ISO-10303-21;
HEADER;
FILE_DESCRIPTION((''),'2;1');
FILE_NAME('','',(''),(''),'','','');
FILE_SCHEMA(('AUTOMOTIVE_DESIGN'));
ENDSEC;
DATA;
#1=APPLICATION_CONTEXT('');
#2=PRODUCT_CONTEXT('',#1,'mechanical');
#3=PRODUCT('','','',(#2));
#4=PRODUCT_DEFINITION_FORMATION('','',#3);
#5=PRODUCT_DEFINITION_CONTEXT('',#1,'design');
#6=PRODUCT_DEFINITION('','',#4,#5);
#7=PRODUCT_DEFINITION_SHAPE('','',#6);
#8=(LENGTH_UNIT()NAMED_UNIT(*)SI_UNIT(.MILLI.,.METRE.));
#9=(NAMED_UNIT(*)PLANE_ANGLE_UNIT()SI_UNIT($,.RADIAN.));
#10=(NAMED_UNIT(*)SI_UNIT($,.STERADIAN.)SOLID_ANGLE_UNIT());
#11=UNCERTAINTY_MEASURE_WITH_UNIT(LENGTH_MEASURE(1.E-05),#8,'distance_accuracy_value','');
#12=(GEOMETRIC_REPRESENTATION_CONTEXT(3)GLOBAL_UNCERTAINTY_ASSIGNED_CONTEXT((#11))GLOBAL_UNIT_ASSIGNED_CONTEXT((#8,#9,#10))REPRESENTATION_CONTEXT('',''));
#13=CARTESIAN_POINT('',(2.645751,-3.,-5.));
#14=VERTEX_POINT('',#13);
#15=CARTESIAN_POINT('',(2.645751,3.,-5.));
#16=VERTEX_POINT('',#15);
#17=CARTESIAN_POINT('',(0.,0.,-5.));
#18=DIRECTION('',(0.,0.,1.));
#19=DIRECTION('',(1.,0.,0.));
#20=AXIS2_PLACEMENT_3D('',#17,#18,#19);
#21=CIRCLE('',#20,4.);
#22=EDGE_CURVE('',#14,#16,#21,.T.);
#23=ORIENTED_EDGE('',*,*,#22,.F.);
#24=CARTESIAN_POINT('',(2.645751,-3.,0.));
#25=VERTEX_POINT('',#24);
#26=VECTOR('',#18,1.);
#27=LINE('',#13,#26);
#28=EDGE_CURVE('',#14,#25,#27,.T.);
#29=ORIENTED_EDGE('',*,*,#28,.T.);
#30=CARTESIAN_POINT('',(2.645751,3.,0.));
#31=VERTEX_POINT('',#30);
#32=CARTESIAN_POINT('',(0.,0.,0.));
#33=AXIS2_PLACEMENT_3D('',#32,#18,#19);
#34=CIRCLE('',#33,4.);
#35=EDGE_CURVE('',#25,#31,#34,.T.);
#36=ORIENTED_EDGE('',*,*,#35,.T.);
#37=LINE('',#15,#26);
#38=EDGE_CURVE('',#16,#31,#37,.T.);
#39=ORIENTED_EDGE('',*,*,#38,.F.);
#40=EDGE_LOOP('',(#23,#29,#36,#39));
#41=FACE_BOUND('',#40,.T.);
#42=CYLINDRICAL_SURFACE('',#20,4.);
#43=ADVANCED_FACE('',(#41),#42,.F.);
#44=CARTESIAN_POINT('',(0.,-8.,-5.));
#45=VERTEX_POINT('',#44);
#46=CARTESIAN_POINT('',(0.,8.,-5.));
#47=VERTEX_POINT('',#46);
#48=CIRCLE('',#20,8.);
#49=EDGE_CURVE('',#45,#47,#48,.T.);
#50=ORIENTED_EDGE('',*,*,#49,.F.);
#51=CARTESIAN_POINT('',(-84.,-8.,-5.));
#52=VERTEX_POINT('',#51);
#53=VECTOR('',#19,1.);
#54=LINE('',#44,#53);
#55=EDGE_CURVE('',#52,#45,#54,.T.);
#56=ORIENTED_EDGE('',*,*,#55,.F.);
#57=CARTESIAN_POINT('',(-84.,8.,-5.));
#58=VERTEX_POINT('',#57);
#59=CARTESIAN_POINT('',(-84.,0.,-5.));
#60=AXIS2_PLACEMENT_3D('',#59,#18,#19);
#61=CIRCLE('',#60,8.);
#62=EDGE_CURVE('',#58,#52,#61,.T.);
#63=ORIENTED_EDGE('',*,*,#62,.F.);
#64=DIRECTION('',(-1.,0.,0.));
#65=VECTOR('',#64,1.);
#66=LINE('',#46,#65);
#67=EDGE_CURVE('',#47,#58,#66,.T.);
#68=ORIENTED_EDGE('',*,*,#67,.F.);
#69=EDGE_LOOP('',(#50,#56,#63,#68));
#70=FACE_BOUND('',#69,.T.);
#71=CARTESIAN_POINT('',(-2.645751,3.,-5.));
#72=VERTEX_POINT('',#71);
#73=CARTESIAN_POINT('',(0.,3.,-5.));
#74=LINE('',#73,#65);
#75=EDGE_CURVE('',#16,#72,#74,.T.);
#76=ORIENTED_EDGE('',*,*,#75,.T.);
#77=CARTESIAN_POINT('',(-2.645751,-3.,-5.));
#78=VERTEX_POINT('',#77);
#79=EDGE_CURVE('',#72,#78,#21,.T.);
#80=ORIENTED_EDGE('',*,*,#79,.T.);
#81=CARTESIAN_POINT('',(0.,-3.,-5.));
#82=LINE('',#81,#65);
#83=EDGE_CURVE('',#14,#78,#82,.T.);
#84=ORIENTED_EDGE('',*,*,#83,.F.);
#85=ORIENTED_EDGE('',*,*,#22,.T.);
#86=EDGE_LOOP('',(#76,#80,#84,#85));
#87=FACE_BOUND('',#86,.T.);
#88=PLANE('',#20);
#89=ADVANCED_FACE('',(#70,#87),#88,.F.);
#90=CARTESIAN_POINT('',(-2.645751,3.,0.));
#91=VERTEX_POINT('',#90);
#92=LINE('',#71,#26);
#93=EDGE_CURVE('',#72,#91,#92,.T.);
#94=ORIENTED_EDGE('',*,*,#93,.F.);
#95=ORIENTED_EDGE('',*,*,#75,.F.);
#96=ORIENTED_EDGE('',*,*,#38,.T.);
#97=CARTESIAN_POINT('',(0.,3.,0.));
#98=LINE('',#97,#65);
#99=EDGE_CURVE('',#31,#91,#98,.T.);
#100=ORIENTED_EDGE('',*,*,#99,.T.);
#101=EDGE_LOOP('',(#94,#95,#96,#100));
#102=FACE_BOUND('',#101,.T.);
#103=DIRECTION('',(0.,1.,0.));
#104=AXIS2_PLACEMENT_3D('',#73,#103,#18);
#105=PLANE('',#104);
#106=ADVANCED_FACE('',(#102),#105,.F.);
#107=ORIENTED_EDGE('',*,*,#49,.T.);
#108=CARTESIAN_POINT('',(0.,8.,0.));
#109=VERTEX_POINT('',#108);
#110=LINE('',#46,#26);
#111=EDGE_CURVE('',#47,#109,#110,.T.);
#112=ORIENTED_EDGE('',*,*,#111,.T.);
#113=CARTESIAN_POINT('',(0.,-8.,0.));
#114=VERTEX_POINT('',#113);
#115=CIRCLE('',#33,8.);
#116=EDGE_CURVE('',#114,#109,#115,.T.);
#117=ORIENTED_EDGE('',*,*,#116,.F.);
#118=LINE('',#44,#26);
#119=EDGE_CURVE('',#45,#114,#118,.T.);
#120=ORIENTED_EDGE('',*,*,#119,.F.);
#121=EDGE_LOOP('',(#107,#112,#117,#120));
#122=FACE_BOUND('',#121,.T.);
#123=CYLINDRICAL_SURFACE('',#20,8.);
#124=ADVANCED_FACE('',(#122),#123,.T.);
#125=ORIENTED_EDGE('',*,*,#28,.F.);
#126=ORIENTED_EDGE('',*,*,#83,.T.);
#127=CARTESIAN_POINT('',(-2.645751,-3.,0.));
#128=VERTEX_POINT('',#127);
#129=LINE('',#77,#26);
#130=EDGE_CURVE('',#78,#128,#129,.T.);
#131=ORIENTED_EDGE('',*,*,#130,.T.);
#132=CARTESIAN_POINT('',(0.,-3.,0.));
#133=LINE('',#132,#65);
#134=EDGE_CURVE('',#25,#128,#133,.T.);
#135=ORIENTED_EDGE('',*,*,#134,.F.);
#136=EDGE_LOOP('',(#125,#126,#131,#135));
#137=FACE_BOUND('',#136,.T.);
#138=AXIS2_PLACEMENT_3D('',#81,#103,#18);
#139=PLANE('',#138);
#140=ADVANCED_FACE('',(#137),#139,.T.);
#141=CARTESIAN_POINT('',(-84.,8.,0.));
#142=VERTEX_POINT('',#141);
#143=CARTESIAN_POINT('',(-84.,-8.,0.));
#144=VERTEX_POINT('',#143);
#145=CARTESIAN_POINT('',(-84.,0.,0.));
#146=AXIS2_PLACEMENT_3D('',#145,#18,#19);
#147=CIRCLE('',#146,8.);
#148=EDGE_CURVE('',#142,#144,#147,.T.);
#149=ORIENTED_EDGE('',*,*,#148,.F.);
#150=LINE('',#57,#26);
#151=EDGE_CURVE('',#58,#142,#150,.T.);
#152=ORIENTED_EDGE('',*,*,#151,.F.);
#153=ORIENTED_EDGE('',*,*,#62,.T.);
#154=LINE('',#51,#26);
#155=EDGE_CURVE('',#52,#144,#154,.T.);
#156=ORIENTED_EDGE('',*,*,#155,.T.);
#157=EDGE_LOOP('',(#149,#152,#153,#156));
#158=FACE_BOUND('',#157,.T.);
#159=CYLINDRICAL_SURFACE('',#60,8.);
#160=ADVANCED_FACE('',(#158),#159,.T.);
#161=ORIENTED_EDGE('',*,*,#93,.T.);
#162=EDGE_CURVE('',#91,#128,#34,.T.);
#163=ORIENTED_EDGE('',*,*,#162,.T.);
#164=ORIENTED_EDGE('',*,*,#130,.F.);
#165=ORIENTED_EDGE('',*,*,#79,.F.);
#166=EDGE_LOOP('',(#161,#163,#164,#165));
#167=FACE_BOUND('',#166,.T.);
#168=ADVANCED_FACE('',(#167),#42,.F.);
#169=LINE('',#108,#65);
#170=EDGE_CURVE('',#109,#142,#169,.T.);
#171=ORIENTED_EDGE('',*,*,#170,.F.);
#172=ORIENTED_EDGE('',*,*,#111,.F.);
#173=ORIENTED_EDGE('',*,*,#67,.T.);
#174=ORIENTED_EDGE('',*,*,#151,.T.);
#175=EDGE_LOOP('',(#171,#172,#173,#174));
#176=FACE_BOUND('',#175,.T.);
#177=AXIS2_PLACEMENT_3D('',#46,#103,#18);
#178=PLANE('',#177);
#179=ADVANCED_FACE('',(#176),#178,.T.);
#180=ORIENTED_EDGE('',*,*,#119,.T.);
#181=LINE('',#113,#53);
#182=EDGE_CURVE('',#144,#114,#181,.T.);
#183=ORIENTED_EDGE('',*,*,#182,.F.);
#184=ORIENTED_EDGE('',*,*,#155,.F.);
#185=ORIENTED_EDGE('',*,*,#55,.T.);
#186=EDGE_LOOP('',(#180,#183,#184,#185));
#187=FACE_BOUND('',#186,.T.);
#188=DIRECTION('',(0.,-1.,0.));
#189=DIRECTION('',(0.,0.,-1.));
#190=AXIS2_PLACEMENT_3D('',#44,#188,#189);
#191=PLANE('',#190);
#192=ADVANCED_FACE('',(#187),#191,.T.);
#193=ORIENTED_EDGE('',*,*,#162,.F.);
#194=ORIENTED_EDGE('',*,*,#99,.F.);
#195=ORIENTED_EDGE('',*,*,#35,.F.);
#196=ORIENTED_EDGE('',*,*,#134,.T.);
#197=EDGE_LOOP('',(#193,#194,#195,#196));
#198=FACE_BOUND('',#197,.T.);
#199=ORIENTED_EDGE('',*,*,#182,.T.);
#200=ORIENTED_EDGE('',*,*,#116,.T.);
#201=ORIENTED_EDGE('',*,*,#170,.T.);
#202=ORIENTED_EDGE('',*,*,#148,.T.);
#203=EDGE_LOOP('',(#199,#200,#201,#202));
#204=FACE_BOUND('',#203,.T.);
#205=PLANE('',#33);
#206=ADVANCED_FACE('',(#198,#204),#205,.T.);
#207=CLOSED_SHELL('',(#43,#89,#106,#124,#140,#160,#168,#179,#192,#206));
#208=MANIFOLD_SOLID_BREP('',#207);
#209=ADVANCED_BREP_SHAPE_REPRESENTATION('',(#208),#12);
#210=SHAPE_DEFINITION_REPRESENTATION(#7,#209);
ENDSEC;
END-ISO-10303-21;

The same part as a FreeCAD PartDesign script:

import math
import FreeCAD as App
import Part
import Sketcher
from FreeCAD import Vector

doc = App.newDocument("Part")
params = doc.addObject("Spreadsheet::Sheet", "Params")
for row, (alias, value) in enumerate([
    ("sketch1_radius", "8 mm"),
    ("sketch1_radius2", "4 mm"),
    ("sketch1_width", "84 mm"),
    ("pad1_length", "5 mm"),
], start=1):
    params.set(f"A{row}", alias)
    params.set(f"B{row}", "=" + value)
    params.setAlias(f"B{row}", alias)

body = doc.addObject("PartDesign::Body", "Body")

# Sketch on XY plane
sketch1 = body.newObject("Sketcher::SketchObject", "Sketch")
sketch1.AttachmentSupport = (doc.getObject("XY_Plane"), [""])
sketch1.MapMode = "FlatFace"
sketch1.addGeometry([
    Part.ArcOfCircle(Part.Circle(Vector(-84, 0, 0), Vector(0, 0, 1), 8), math.radians(90), math.radians(270)),  # 0
    Part.LineSegment(Vector(-84, -8, 0), Vector(0, -8, 0)),  # 1
    Part.ArcOfCircle(Part.Circle(Vector(0, 0, 0), Vector(0, 0, 1), 8), math.radians(-90), math.radians(90)),  # 2
    Part.LineSegment(Vector(0, 8, 0), Vector(-84, 8, 0)),  # 3
    Part.LineSegment(Vector(2.6, -3, 0), Vector(-2.6, -3, 0)),  # 4
    Part.ArcOfCircle(Part.Circle(Vector(0, 0, 0), Vector(0, 0, 1), 4), math.radians(131), math.radians(229)),  # 5
    Part.LineSegment(Vector(-2.6, 3, 0), Vector(2.6, 3, 0)),  # 6
    Part.ArcOfCircle(Part.Circle(Vector(0, 0, 0), Vector(0, 0, 1), 4), math.radians(-49), math.radians(49)),  # 7
], False)
sketch1.addConstraint([
    Sketcher.Constraint("Tangent", 0, 2, 1, 1),
    Sketcher.Constraint("Tangent", 1, 2, 2, 1),
    Sketcher.Constraint("Tangent", 2, 2, 3, 1),
    Sketcher.Constraint("Tangent", 3, 2, 0, 1),
    Sketcher.Constraint("Coincident", 4, 2, 5, 2),
    Sketcher.Constraint("Coincident", 5, 1, 6, 1),
    Sketcher.Constraint("Coincident", 6, 2, 7, 2),
    Sketcher.Constraint("Coincident", 7, 1, 4, 1),
    Sketcher.Constraint("Horizontal", 1),
    Sketcher.Constraint("Horizontal", 3),
    Sketcher.Constraint("Horizontal", 4),
    Sketcher.Constraint("Horizontal", 6),
    Sketcher.Constraint("Coincident", 2, 3, -1, 1),
    Sketcher.Constraint("Coincident", 5, 3, -1, 1),
    Sketcher.Constraint("Coincident", 7, 3, -1, 1),
    Sketcher.Constraint("Equal", 5, 7),
    Sketcher.Constraint("Vertical", 4, 2, 5, 1),
    Sketcher.Constraint("Radius", 0, 8.0),
    Sketcher.Constraint("Radius", 5, 4.0),
    Sketcher.Constraint("DistanceX", 1, 1, 1, 2, 84.0),
    Sketcher.Constraint("DistanceY", 4, 2, -1, 1, 3.0),
])
sketch1.setExpression("Constraints[17]", "Params.sketch1_radius")
sketch1.setExpression("Constraints[18]", "Params.sketch1_radius2")
sketch1.setExpression("Constraints[19]", "Params.sketch1_width")
pad1 = body.newObject("PartDesign::Pad", "Pad")
pad1.Profile = sketch1
pad1.setExpression("Length", "Params.pad1_length")
pad1.Reversed = True

doc.recompute()
